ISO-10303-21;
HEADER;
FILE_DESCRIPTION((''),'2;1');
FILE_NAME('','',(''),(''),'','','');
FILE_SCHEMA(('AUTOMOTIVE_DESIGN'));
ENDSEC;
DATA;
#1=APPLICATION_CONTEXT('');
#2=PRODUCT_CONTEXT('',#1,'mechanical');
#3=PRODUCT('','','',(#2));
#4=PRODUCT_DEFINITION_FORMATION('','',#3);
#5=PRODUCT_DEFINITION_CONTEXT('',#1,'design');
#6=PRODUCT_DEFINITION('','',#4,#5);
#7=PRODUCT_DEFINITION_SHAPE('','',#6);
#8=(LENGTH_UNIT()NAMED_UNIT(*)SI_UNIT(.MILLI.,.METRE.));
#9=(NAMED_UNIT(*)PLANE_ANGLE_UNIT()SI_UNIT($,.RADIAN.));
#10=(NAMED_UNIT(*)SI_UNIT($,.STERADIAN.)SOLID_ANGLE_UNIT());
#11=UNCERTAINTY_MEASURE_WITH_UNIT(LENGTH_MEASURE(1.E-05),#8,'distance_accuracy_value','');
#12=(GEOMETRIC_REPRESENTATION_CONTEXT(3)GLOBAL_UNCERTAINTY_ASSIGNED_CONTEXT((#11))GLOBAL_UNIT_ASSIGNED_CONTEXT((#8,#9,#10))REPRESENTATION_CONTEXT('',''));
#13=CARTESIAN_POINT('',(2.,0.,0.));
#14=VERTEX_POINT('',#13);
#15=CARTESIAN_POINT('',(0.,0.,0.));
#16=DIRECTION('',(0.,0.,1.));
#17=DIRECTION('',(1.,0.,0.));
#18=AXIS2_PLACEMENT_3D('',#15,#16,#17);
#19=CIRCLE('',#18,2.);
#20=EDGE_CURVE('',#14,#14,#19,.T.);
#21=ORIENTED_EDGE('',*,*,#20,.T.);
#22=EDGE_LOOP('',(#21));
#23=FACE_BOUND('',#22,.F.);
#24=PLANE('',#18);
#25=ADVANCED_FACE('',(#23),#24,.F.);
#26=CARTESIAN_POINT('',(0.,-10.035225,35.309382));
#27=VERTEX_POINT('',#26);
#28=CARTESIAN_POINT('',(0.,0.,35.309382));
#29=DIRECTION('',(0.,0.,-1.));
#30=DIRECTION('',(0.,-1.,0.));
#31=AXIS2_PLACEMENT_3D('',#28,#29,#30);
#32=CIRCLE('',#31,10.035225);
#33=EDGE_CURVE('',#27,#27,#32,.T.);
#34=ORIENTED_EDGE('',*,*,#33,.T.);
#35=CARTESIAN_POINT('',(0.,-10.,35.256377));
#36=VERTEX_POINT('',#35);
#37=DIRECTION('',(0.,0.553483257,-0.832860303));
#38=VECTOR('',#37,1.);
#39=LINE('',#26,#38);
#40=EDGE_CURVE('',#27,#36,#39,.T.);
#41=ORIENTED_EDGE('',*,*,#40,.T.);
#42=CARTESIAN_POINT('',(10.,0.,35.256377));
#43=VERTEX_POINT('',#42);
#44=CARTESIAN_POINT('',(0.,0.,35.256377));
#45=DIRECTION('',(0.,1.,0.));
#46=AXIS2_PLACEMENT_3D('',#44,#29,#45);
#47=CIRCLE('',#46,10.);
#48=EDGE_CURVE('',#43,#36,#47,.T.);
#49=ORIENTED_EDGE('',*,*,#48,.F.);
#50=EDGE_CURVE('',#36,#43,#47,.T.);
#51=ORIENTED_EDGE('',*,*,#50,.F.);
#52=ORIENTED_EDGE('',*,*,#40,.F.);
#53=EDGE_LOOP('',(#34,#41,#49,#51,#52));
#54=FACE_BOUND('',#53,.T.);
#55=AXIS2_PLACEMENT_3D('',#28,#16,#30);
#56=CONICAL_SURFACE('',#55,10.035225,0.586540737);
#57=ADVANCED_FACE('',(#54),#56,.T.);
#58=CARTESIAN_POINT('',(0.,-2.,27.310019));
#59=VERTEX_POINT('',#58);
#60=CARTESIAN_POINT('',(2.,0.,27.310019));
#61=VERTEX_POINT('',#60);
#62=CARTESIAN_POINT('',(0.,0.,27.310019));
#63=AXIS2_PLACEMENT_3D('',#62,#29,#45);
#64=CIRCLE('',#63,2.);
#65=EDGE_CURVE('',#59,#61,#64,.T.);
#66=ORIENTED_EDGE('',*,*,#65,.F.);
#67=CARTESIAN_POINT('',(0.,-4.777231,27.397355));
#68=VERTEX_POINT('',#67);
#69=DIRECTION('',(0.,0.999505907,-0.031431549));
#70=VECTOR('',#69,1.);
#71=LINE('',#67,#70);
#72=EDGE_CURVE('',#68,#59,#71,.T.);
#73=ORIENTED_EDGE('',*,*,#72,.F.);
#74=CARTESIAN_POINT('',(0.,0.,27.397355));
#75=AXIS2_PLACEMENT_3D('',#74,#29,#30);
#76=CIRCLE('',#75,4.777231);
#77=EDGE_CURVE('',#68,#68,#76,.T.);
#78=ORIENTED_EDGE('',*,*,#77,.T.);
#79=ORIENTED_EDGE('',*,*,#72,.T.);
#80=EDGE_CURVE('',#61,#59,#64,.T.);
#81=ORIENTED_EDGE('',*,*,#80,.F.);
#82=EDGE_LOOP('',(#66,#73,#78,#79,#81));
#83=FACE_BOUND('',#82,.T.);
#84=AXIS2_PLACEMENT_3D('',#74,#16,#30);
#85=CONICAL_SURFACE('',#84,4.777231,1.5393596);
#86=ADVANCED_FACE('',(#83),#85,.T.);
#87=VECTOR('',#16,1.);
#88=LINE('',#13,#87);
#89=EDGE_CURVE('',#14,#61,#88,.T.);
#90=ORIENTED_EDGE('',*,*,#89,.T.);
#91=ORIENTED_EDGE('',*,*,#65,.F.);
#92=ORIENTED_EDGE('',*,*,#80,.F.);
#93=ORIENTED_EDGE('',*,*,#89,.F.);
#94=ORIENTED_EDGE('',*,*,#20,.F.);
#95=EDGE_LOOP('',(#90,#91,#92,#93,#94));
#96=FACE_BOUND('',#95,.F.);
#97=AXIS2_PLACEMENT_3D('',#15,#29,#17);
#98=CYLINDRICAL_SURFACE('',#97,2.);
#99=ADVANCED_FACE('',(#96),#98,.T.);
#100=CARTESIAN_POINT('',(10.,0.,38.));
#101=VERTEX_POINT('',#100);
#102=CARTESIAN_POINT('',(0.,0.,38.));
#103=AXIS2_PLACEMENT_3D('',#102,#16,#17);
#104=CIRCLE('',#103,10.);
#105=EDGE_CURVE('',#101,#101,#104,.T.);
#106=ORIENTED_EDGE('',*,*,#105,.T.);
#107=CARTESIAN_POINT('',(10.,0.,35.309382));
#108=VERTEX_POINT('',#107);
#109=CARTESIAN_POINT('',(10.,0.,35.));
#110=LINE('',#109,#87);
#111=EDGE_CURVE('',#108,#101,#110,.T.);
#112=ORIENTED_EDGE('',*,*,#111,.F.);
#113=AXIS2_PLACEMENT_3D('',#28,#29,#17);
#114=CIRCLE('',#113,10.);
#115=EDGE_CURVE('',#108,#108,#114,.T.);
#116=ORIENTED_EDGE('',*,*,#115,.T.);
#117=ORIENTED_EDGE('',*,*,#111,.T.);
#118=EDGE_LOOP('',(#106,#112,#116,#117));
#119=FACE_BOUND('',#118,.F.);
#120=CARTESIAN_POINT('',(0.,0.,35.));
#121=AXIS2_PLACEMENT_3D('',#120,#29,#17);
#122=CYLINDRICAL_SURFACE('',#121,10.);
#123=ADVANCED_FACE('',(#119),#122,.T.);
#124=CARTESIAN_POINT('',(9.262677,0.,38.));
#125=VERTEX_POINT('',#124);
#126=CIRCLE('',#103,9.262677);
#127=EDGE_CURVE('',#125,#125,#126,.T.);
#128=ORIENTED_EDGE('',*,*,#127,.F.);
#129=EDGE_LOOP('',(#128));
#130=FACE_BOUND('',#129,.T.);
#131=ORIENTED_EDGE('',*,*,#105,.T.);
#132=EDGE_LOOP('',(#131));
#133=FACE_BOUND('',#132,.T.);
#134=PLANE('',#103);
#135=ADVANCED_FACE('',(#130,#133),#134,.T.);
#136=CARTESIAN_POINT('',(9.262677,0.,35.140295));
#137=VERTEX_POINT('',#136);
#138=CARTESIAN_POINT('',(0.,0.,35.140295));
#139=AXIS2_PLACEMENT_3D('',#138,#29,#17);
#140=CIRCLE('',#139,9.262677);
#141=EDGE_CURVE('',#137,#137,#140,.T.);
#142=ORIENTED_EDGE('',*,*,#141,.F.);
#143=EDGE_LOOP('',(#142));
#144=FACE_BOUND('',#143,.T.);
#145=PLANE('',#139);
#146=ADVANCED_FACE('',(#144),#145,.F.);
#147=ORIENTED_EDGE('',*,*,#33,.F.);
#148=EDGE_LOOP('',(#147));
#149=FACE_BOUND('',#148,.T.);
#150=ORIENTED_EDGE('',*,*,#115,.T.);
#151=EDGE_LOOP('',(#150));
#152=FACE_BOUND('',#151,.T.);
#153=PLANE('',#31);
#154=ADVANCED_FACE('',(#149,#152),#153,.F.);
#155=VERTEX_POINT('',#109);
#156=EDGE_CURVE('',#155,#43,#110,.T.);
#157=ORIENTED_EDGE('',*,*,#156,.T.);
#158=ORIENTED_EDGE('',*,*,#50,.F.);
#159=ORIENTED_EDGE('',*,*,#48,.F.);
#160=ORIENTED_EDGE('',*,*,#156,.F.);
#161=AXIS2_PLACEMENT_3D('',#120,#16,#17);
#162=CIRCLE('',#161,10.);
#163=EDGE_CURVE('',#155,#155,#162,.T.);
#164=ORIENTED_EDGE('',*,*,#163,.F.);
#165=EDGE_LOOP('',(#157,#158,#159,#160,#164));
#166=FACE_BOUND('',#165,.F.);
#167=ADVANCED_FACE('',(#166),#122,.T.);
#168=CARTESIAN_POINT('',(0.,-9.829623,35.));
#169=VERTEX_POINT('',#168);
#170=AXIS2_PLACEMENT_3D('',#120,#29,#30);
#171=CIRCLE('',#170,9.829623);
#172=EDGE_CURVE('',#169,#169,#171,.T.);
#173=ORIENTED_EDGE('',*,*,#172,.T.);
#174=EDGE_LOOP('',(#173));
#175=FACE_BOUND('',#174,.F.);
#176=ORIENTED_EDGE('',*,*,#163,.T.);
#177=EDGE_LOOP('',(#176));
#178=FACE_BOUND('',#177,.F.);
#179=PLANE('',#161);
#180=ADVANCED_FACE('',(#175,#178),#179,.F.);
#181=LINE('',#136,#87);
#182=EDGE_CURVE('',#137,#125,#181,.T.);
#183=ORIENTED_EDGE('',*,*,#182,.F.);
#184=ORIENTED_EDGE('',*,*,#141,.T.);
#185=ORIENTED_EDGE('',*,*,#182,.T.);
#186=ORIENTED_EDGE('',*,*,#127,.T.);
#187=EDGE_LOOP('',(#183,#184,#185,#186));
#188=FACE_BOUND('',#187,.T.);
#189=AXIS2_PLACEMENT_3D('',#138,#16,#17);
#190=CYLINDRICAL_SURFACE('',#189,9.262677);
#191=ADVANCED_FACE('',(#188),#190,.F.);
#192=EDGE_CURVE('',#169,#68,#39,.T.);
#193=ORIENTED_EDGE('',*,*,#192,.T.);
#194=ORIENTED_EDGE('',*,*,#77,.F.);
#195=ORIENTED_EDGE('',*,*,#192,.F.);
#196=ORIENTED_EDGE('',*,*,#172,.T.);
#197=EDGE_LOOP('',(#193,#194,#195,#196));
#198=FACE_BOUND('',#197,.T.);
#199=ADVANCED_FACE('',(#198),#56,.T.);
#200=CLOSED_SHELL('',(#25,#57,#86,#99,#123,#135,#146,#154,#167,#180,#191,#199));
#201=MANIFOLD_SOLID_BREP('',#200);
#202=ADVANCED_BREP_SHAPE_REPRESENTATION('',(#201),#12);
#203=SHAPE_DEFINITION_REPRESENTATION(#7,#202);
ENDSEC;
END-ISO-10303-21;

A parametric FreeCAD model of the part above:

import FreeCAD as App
import Part
import Sketcher


def add_polygon(sketch, points):
    """Adds a closed chain of lines whose ends are joined by coincident constraints."""
    first, n = sketch.GeometryCount, len(points)
    for a, b in zip(points, points[1:] + points[:1]):
        sketch.addGeometry(Part.LineSegment(App.Vector(*a, 0), App.Vector(*b, 0)), False)
    for i in range(n):
        sketch.addConstraint(Sketcher.Constraint("Coincident", first + i, 2, first + (i + 1) % n, 1))

doc = App.newDocument("Part")
params = doc.addObject("Spreadsheet::Sheet", "Params")
for row, (alias, value) in enumerate([
    ("sketch1_diameter", "4 mm"),
    ("pad1_length", "35 mm"),
    ("sketch2_diameter", "20 mm"),
    ("pad2_length", "3 mm"),
    ("revolution_angle", "360 deg"),
    ("groove_angle", "360 deg"),
], start=1):
    params.set(f"A{row}", alias)
    params.set(f"B{row}", "=" + value)
    params.setAlias(f"B{row}", alias)

body = doc.addObject("PartDesign::Body", "Body")

# Sketch on XY plane
sketch1 = body.newObject("Sketcher::SketchObject", "Sketch")
sketch1.AttachmentSupport = (doc.getObject("XY_Plane"), [""])
sketch1.MapMode = "FlatFace"
sketch1.addGeometry(Part.Circle(App.Vector(0, 0, 0), App.Vector(0, 0, 1), 2), False)
sketch1.addConstraint([
    Sketcher.Constraint("Coincident", 0, 3, -1, 1),
    Sketcher.Constraint("Diameter", 0, 4.0),
])
sketch1.setExpression("Constraints[1]", "Params.sketch1_diameter")
pad1 = body.newObject("PartDesign::Pad", "Pad")
pad1.Profile = sketch1
pad1.setExpression("Length", "Params.pad1_length")

# Sketch on XY plane
sketch2 = body.newObject("Sketcher::SketchObject", "Sketch001")
sketch2.AttachmentSupport = (doc.getObject("XY_Plane"), [""])
sketch2.MapMode = "FlatFace"
sketch2.AttachmentOffset = App.Placement(App.Vector(0, 0, 35), App.Rotation())
sketch2.addGeometry(Part.Circle(App.Vector(0, 0, 0), App.Vector(0, 0, 1), 10), False)
sketch2.addConstraint([
    Sketcher.Constraint("Coincident", 0, 3, -1, 1),
    Sketcher.Constraint("Diameter", 0, 20.0),
])
sketch2.setExpression("Constraints[1]", "Params.sketch2_diameter")
pad2 = body.newObject("PartDesign::Pad", "Pad001")
pad2.Profile = sketch2
pad2.setExpression("Length", "Params.pad2_length")

# Sketch on YZ plane
sketch3 = body.newObject("Sketcher::SketchObject", "Sketch002")
sketch3.AttachmentSupport = (doc.getObject("YZ_Plane"), [""])
sketch3.MapMode = "FlatFace"
add_polygon(sketch3, [(0, 35.3), (-10, 35.3), (-4.8, 27.4), (0, 27.2)])  # lines 0-3
sketch3.addConstraint([
    Sketcher.Constraint("Horizontal", 0),
    Sketcher.Constraint("Vertical", 3),
    Sketcher.Constraint("PointOnObject", 2, 2, -2),
    Sketcher.Constraint("DistanceX", 0, 2, 0, 1, 10.035225),
    Sketcher.Constraint("DistanceY", 3, 1, 3, 2, 8.062257),
    Sketcher.Constraint("DistanceX", 1, 2, -1, 1, 4.777231),
    Sketcher.Constraint("DistanceY", 2, 2, 1, 2, 0.15023),
    Sketcher.Constraint("DistanceY", -1, 1, 0, 2, 35.309382),
])
revolution = body.newObject("PartDesign::Revolution", "Revolution")
revolution.Profile = sketch3
revolution.ReferenceAxis = (sketch3, ["V_Axis"])
revolution.setExpression("Angle", "Params.revolution_angle")

# Sketch on XZ plane
sketch4 = body.newObject("Sketcher::SketchObject", "Sketch003")
sketch4.AttachmentSupport = (doc.getObject("XZ_Plane"), [""])
sketch4.MapMode = "FlatFace"
add_polygon(sketch4, [(9.3, 40.6), (0, 38.9), (0, 35.1), (9.3, 35.1)])  # lines 0-3
sketch4.addConstraint([
    Sketcher.Constraint("Vertical", 1),
    Sketcher.Constraint("Horizontal", 2),
    Sketcher.Constraint("Vertical", 3),
    Sketcher.Constraint("PointOnObject", 0, 2, -2),
    Sketcher.Constraint("DistanceY", -1, 1, 0, 2, 38.892001),
    Sketcher.Constraint("DistanceY", 3, 1, 3, 2, 5.419131),
    Sketcher.Constraint("Distance", 0, 9.411562),
    Sketcher.Constraint("DistanceX", 2, 1, 2, 2, 9.262677),
])
groove = body.newObject("PartDesign::Groove", "Groove")
groove.Profile = sketch4
groove.ReferenceAxis = (sketch4, ["V_Axis"])
groove.setExpression("Angle", "Params.groove_angle")

doc.recompute()
